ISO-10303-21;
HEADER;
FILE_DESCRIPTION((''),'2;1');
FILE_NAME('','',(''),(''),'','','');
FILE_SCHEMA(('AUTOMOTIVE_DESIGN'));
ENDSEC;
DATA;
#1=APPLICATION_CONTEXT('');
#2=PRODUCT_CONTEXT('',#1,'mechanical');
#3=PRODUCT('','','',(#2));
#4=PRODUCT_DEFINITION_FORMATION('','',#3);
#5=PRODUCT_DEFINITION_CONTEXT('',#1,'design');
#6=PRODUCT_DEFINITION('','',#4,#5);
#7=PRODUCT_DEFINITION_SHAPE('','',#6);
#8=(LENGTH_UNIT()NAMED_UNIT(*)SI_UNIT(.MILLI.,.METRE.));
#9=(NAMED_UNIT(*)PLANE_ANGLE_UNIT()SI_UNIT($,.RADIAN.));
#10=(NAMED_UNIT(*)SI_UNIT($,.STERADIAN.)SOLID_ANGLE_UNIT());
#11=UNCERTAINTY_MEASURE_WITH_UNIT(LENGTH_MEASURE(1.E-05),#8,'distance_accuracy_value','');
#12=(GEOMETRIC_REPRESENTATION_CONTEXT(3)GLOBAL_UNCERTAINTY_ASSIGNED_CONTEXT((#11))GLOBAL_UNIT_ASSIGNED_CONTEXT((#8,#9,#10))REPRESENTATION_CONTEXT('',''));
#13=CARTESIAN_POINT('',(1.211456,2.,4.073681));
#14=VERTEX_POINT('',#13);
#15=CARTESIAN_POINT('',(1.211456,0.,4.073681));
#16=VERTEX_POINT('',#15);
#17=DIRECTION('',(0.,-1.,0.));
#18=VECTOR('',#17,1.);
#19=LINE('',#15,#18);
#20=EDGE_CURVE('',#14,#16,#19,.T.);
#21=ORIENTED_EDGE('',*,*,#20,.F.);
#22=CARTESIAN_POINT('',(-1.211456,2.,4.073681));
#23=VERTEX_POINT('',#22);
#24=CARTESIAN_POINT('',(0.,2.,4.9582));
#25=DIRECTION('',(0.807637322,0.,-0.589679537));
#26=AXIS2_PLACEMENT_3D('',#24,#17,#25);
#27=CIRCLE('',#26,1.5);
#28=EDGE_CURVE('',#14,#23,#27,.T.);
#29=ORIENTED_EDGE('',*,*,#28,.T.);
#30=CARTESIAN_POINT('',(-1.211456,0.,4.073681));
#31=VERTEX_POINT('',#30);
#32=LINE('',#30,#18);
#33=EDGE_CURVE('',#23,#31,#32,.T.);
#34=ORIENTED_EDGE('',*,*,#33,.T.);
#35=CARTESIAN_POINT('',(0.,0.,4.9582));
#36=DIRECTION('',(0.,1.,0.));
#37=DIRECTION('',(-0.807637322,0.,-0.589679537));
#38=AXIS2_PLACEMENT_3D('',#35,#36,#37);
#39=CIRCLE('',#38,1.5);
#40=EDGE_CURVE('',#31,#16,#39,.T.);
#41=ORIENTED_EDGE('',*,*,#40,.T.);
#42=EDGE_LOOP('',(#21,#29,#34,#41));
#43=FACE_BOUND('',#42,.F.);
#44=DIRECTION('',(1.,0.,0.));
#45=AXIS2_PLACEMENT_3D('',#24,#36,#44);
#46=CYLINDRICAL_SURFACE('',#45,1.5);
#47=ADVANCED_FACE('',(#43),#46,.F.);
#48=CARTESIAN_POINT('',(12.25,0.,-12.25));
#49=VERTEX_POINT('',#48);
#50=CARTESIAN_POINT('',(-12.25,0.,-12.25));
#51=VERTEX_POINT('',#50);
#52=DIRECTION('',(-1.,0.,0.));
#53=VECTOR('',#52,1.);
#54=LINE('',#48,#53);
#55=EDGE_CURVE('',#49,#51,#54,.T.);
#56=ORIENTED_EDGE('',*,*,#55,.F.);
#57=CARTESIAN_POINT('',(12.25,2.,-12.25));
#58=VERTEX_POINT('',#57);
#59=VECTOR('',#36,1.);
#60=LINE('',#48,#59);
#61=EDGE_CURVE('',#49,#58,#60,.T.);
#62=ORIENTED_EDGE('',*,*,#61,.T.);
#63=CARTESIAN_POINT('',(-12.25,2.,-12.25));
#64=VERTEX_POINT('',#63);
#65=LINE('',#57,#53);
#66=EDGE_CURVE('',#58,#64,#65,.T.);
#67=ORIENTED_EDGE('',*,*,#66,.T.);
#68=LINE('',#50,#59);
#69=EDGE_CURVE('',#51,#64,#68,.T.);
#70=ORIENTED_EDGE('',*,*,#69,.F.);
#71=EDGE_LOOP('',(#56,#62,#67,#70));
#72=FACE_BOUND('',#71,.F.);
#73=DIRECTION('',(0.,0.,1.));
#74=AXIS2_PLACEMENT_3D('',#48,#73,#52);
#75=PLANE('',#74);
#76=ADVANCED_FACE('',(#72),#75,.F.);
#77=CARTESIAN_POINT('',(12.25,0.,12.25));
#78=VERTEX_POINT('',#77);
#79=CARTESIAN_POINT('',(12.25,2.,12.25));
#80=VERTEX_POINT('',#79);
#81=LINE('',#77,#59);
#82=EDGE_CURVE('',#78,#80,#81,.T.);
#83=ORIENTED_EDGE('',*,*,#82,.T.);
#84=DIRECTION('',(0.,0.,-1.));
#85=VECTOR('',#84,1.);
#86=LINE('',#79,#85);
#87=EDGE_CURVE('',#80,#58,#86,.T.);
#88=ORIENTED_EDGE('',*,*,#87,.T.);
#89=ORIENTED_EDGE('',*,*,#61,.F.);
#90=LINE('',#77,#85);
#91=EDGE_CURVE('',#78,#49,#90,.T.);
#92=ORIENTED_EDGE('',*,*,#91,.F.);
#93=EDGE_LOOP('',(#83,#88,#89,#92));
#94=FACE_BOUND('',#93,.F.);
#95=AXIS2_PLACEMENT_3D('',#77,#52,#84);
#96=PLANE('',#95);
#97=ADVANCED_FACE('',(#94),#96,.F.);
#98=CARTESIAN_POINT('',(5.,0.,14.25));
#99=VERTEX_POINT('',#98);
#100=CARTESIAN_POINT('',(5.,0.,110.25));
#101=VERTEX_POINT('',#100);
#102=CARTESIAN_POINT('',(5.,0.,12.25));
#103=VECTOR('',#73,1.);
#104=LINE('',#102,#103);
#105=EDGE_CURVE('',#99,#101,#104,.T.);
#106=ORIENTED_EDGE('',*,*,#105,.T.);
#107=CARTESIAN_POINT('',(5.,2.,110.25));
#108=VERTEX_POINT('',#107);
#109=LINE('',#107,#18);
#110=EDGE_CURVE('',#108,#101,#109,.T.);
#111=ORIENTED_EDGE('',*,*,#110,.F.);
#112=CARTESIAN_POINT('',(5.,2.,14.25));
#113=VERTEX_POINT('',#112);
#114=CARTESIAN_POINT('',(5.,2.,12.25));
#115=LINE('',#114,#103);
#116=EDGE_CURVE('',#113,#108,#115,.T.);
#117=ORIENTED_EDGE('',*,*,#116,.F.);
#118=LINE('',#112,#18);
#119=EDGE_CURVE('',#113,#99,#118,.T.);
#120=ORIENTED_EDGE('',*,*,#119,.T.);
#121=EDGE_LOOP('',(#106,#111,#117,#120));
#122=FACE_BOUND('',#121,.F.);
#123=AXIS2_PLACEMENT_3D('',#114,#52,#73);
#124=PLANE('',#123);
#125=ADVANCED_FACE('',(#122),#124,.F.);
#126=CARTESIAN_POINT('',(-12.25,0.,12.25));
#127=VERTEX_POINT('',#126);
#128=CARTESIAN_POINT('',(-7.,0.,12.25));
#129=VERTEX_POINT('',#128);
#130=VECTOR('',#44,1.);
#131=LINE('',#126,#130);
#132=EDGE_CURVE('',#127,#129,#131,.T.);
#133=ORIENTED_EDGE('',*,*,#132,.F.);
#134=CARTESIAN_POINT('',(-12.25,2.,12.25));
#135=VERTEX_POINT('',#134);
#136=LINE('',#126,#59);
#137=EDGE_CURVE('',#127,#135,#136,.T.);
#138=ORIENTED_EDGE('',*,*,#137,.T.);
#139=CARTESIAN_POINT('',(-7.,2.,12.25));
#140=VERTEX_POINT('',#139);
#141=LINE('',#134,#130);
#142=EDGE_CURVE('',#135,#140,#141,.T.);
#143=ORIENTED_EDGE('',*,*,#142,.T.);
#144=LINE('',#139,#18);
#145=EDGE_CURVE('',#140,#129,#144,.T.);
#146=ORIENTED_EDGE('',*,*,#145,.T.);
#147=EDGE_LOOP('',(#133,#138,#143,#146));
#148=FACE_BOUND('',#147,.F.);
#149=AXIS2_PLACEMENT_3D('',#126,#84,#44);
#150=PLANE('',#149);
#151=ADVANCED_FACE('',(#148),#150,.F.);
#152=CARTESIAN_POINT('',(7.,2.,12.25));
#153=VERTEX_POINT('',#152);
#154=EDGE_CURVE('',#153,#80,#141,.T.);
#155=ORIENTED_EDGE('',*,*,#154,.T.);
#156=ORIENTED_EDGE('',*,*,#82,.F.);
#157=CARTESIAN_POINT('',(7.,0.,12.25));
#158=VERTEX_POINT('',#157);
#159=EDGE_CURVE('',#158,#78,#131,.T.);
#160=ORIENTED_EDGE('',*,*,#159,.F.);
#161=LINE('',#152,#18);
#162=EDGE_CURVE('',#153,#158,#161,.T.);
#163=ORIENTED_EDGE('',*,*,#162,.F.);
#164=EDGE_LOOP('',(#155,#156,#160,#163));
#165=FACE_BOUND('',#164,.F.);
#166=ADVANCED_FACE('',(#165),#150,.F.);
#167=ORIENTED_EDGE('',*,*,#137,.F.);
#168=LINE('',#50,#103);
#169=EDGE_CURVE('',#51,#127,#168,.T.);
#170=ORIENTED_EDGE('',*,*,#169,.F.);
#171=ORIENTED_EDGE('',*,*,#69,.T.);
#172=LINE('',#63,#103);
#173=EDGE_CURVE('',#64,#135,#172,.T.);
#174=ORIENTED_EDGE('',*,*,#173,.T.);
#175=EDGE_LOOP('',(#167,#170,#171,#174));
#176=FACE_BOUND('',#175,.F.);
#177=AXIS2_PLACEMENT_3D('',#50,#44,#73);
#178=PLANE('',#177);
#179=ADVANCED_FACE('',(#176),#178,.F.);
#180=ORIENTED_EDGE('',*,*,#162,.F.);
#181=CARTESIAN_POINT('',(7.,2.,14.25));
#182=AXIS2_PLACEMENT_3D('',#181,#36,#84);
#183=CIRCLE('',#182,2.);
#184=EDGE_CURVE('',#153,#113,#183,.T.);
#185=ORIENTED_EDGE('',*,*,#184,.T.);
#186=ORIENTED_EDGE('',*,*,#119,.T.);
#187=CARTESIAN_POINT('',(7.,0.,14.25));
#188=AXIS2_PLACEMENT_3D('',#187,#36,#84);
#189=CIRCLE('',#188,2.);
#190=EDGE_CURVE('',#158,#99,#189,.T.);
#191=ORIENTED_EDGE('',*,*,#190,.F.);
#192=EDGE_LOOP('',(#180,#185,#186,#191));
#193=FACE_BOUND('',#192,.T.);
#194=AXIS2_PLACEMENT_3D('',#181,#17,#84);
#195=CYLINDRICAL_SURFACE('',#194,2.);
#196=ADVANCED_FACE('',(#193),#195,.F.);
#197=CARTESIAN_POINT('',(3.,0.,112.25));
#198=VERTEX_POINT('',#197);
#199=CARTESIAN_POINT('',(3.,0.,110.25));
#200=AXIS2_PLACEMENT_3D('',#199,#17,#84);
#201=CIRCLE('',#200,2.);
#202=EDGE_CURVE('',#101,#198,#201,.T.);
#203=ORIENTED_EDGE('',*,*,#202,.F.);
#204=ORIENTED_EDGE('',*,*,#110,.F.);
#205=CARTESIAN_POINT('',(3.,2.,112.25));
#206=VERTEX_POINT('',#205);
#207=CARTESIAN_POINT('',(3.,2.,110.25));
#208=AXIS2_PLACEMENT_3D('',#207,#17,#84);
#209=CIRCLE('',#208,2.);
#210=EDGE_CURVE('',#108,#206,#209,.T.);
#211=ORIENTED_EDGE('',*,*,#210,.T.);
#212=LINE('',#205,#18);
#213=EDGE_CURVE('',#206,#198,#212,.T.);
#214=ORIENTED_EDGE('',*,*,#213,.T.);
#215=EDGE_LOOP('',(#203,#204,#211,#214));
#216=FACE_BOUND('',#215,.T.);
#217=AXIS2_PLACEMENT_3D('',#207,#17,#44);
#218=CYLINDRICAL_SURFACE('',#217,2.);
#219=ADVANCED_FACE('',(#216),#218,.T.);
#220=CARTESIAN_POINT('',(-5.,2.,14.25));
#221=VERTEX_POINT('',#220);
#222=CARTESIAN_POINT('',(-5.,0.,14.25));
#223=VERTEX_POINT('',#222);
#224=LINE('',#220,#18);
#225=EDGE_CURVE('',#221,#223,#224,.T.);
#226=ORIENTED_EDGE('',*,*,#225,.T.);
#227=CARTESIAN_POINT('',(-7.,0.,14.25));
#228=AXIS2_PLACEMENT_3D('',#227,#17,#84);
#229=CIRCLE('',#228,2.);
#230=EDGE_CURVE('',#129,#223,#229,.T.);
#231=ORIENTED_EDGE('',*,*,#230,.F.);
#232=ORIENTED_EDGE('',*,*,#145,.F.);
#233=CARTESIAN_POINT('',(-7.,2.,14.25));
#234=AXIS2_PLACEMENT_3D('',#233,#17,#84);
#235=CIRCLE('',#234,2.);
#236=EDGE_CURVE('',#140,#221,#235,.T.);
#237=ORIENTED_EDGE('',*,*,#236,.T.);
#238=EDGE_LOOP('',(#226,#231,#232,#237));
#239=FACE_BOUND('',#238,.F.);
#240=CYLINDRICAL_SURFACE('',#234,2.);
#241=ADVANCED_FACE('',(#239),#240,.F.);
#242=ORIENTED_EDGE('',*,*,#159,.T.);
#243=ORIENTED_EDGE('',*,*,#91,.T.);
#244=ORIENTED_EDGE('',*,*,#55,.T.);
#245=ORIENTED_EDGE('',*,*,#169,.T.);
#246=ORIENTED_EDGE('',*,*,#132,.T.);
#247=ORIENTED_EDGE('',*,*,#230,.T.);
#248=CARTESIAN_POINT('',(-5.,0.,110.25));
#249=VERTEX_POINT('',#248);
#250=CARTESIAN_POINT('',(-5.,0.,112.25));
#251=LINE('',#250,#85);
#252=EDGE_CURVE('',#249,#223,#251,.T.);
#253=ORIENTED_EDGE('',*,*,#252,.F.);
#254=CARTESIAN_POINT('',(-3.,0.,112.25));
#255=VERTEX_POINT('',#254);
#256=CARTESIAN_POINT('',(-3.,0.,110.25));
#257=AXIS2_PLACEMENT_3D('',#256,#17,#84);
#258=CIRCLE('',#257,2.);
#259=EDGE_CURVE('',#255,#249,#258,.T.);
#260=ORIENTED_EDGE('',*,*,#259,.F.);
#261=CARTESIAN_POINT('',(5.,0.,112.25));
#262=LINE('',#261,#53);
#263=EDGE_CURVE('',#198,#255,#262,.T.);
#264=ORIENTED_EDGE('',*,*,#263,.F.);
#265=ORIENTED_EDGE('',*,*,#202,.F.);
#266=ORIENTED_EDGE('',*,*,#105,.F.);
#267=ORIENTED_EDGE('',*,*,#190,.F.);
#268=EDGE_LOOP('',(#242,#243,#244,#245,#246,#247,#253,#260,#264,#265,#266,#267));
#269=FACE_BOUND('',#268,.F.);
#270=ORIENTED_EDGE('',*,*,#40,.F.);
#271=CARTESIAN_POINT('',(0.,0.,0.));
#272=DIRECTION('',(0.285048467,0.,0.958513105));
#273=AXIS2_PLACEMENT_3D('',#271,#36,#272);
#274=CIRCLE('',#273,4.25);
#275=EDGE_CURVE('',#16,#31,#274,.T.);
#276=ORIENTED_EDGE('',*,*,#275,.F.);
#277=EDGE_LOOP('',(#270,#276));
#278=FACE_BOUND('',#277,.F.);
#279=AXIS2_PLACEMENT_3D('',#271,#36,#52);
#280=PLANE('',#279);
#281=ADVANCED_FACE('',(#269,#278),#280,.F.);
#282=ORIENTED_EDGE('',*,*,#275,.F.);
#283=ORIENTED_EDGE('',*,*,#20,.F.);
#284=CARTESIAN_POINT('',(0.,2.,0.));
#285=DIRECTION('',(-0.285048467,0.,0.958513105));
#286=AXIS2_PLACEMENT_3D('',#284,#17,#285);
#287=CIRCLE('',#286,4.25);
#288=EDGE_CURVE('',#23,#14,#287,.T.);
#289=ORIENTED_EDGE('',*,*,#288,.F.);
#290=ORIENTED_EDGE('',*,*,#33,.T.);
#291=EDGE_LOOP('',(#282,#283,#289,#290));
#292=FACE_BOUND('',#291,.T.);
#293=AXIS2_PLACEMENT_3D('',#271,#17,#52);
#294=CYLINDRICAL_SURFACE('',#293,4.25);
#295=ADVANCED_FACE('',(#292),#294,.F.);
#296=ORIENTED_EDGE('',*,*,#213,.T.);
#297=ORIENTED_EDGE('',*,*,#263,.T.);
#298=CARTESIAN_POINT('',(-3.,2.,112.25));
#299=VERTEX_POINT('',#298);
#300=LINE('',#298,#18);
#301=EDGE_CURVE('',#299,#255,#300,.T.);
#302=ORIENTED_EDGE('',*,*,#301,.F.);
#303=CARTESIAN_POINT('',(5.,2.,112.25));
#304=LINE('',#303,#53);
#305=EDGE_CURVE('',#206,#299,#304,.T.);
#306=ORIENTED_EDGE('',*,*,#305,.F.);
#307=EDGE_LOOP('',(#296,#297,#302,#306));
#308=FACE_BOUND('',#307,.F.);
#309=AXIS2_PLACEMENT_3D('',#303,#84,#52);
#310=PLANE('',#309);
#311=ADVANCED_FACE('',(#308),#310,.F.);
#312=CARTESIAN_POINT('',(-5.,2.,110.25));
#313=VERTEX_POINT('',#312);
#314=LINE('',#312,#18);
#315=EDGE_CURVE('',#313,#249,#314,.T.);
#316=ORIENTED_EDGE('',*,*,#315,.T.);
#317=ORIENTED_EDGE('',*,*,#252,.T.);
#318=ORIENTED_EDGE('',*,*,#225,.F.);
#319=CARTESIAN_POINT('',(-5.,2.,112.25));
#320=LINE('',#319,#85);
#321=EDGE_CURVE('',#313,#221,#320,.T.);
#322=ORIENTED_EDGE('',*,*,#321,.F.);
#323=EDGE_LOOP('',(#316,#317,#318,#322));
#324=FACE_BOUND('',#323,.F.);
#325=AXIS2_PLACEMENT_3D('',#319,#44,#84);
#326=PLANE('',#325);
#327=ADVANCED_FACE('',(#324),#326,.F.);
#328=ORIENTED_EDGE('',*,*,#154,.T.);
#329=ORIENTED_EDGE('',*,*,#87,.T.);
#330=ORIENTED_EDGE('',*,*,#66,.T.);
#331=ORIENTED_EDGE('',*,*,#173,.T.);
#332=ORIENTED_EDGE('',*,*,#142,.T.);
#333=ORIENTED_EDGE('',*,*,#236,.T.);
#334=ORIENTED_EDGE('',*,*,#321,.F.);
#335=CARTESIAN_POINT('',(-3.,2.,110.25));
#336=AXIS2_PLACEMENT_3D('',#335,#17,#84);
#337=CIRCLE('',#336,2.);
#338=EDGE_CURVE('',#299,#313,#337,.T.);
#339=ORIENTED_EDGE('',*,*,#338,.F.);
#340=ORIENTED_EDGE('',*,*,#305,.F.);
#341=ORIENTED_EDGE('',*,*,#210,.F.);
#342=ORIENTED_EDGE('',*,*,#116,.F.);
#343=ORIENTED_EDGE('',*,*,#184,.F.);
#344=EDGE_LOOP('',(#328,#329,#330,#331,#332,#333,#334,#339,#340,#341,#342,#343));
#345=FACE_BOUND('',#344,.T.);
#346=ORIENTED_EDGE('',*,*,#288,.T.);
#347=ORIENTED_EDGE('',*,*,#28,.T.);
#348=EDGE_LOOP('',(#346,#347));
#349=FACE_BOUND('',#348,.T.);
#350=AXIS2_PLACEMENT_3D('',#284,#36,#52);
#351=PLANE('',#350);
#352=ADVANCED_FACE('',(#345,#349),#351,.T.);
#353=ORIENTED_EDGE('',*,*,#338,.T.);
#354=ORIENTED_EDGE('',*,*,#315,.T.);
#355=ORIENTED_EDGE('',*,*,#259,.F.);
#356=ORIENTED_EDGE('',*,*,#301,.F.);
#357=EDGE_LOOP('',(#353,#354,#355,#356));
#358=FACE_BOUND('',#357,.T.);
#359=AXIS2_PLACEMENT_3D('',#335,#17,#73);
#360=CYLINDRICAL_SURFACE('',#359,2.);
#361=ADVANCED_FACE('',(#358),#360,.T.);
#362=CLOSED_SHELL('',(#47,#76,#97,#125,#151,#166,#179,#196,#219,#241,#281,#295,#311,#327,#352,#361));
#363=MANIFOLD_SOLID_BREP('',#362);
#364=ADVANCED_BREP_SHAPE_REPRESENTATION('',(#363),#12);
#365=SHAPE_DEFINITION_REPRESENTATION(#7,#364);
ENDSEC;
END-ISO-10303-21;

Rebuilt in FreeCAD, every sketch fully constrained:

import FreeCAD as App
import Part
import Sketcher

V = App.Vector


def edges_at(feature, points):
    """Names of the edges that pass closest to the given points."""
    edges = feature.Shape.Edges
    near = lambda p: min(range(len(edges)), key=lambda i: edges[i].distToShape(Part.Vertex(*p))[0])
    return sorted({f"Edge{near(p) + 1}" for p in points})


def add_polygon(sketch, points):
    """Adds a closed chain of lines whose ends are joined by coincident constraints."""
    first, n = sketch.GeometryCount, len(points)
    for a, b in zip(points, points[1:] + points[:1]):
        sketch.addGeometry(Part.LineSegment(App.Vector(*a, 0), App.Vector(*b, 0)), False)
    for i in range(n):
        sketch.addConstraint(Sketcher.Constraint("Coincident", first + i, 2, first + (i + 1) % n, 1))

doc = App.newDocument("Part")
body = doc.addObject("PartDesign::Body", "Body")

# Sketch on XZ plane
sketch1 = doc.addObject("Sketcher::SketchObject", "Sketch")
body.addObject(sketch1)
sketch1.AttachmentSupport = (doc.XZ_Plane, [""])
sketch1.MapMode = "FlatFace"
add_polygon(sketch1, [(12.2, 12.2), (12.2, -12.2), (-12.2, -12.2), (-12.2, 12.2)])  # lines 0-3
sketch1.addGeometry(Part.Circle(V(0, 0, 0), V(0, 0, 1), 4.2), False)  # 4
sketch1.addConstraint([
    Sketcher.Constraint("Vertical", 0),
    Sketcher.Constraint("Horizontal", 1),
    Sketcher.Constraint("Vertical", 2),
    Sketcher.Constraint("Horizontal", 3),
    Sketcher.Constraint("Coincident", 4, 3, -1, 1),
    Sketcher.Constraint("Symmetric", 0, 2, 2, 2, -1, 1),
    Sketcher.Constraint("Equal", 3, 0),
    Sketcher.Constraint("Diameter", 4, 8.5),
    Sketcher.Constraint("DistanceX", 1, 2, 1, 1, 24.5),
])
pad1 = doc.addObject("PartDesign::Pad", "Pad")
body.addObject(pad1)
pad1.Profile = sketch1
pad1.Length = 2
pad1.Reversed = True

# Sketch on XZ plane
sketch2 = doc.addObject("Sketcher::SketchObject", "Sketch001")
body.addObject(sketch2)
sketch2.AttachmentSupport = (doc.XZ_Plane, [""])
sketch2.MapMode = "FlatFace"
sketch2.AttachmentOffset = App.Placement(V(0, 0, -2), App.Rotation())
sketch2.addGeometry(Part.Circle(V(0, 5, 0), V(0, 0, 1), 1.5), False)
sketch2.addConstraint([
    Sketcher.Constraint("PointOnObject", 0, 3, -2),
    Sketcher.Constraint("Diameter", 0, 3.0),
    Sketcher.Constraint("DistanceY", -1, 1, 0, 3, 4.9582),
])
pocket1 = doc.addObject("PartDesign::Pocket", "Pocket")
body.addObject(pocket1)
pocket1.Profile = sketch2
pocket1.Length = 3
pocket1.Reversed = True

# Sketch on XZ plane
sketch3 = doc.addObject("Sketcher::SketchObject", "Sketch002")
body.addObject(sketch3)
sketch3.AttachmentSupport = (doc.XZ_Plane, [""])
sketch3.MapMode = "FlatFace"
sketch3.AttachmentOffset = App.Placement(V(0, 0, -2), App.Rotation())
add_polygon(sketch3, [(5, 12), (-5, 12), (-5, 112), (5, 112)])  # lines 0-3
sketch3.addConstraint([
    Sketcher.Constraint("Horizontal", 0),
    Sketcher.Constraint("Vertical", 1),
    Sketcher.Constraint("Horizontal", 2),
    Sketcher.Constraint("Vertical", 3),
    Sketcher.Constraint("DistanceX", 0, 2, 0, 1, 10.0),
    Sketcher.Constraint("DistanceY", 1, 1, 1, 2, 100.0),
    Sketcher.Constraint("DistanceX", 0, 2, -1, 1, 5.0),
    Sketcher.Constraint("DistanceY", -1, 1, 0, 2, 12.25),
])
pad2 = doc.addObject("PartDesign::Pad", "Pad001")
body.addObject(pad2)
pad2.Profile = sketch3
pad2.Length = 2
doc.recompute()

fillet = doc.addObject("PartDesign::Fillet", "Fillet")
body.addObject(fillet)
fillet.Base = (pad2, edges_at(pad2, [
    (5, 1, 12.25),
    (-5, 1, 12.25),
    (5, 1, 112.25),
    (-5, 1, 112.25),
]))
fillet.Radius = 2

doc.recompute()
